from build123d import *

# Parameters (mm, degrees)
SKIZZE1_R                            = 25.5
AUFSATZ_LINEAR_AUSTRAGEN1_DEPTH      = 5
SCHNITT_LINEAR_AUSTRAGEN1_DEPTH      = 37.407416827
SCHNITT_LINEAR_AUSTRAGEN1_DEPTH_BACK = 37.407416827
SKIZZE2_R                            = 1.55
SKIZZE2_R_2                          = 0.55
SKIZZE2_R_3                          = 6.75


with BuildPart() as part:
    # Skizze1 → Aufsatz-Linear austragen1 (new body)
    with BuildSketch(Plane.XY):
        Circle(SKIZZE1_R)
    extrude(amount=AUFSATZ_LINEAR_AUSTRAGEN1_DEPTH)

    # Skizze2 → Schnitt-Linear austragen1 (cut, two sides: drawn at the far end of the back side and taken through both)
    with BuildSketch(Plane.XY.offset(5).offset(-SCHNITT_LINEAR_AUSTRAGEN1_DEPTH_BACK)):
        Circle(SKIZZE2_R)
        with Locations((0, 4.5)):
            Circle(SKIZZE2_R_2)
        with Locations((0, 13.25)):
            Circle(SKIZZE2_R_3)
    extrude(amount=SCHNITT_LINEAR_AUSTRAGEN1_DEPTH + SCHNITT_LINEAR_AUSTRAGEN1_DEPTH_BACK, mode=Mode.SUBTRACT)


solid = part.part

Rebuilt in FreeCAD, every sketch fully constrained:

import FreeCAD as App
import Part
import Sketcher
Q = App.Units.Quantity

doc = App.newDocument("Part")
body = doc.addObject("PartDesign::Body", "Body")

# Sketch on XY plane
sketch1 = doc.addObject("Sketcher::SketchObject", "Sketch")
body.addObject(sketch1)
sketch1.AttachmentSupport = (doc.XY_Plane, [""])
sketch1.MapMode = "FlatFace"
sketch1.addGeometry(Part.Circle(App.Vector(0, 0, 0), App.Vector(0, 0, 1), 26), False)
sketch1.addConstraint(Sketcher.Constraint("Coincident", 0, 3, -1, 1))
sketch1.addConstraint(Sketcher.Constraint("Diameter", 0, Q("51 mm")))
pad1 = doc.addObject("PartDesign::Pad", "Pad")
body.addObject(pad1)
pad1.Profile = sketch1
pad1.Length = 5

# Sketch on XY plane
sketch2 = doc.addObject("Sketcher::SketchObject", "Sketch001")
body.addObject(sketch2)
sketch2.AttachmentSupport = (doc.XY_Plane, [""])
sketch2.MapMode = "FlatFace"
sketch2.AttachmentOffset = App.Placement(App.Vector(0, 0, 5), App.Rotation())
sketch2.addGeometry(Part.Circle(App.Vector(0, 0, 0), App.Vector(0, 0, 1), 1.6), False)
sketch2.addGeometry(Part.Circle(App.Vector(0, 4.5, 0), App.Vector(0, 0, 1), 0.6), False)
sketch2.addGeometry(Part.Circle(App.Vector(0, 13.2, 0), App.Vector(0, 0, 1), 6.8), False)
sketch2.addConstraint(Sketcher.Constraint("Coincident", 0, 3, -1, 1))
sketch2.addConstraint(Sketcher.Constraint("PointOnObject", 1, 3, -2))
sketch2.addConstraint(Sketcher.Constraint("PointOnObject", 2, 3, -2))
sketch2.addConstraint(Sketcher.Constraint("Diameter", 0, Q("3.1 mm")))
sketch2.addConstraint(Sketcher.Constraint("Diameter", 1, Q("1.1 mm")))
sketch2.addConstraint(Sketcher.Constraint("Diameter", 2, Q("13.5 mm")))
sketch2.addConstraint(Sketcher.Constraint("DistanceY", -1, 1, 1, 3, Q("4.5 mm")))
sketch2.addConstraint(Sketcher.Constraint("DistanceY", -1, 1, 2, 3, Q("13.25 mm")))
pocket1 = doc.addObject("PartDesign::Pocket", "Pocket")
body.addObject(pocket1)
pocket1.Profile = sketch2
pocket1.Type = "ThroughAll"
pocket1.Midplane = True

doc.recompute()
